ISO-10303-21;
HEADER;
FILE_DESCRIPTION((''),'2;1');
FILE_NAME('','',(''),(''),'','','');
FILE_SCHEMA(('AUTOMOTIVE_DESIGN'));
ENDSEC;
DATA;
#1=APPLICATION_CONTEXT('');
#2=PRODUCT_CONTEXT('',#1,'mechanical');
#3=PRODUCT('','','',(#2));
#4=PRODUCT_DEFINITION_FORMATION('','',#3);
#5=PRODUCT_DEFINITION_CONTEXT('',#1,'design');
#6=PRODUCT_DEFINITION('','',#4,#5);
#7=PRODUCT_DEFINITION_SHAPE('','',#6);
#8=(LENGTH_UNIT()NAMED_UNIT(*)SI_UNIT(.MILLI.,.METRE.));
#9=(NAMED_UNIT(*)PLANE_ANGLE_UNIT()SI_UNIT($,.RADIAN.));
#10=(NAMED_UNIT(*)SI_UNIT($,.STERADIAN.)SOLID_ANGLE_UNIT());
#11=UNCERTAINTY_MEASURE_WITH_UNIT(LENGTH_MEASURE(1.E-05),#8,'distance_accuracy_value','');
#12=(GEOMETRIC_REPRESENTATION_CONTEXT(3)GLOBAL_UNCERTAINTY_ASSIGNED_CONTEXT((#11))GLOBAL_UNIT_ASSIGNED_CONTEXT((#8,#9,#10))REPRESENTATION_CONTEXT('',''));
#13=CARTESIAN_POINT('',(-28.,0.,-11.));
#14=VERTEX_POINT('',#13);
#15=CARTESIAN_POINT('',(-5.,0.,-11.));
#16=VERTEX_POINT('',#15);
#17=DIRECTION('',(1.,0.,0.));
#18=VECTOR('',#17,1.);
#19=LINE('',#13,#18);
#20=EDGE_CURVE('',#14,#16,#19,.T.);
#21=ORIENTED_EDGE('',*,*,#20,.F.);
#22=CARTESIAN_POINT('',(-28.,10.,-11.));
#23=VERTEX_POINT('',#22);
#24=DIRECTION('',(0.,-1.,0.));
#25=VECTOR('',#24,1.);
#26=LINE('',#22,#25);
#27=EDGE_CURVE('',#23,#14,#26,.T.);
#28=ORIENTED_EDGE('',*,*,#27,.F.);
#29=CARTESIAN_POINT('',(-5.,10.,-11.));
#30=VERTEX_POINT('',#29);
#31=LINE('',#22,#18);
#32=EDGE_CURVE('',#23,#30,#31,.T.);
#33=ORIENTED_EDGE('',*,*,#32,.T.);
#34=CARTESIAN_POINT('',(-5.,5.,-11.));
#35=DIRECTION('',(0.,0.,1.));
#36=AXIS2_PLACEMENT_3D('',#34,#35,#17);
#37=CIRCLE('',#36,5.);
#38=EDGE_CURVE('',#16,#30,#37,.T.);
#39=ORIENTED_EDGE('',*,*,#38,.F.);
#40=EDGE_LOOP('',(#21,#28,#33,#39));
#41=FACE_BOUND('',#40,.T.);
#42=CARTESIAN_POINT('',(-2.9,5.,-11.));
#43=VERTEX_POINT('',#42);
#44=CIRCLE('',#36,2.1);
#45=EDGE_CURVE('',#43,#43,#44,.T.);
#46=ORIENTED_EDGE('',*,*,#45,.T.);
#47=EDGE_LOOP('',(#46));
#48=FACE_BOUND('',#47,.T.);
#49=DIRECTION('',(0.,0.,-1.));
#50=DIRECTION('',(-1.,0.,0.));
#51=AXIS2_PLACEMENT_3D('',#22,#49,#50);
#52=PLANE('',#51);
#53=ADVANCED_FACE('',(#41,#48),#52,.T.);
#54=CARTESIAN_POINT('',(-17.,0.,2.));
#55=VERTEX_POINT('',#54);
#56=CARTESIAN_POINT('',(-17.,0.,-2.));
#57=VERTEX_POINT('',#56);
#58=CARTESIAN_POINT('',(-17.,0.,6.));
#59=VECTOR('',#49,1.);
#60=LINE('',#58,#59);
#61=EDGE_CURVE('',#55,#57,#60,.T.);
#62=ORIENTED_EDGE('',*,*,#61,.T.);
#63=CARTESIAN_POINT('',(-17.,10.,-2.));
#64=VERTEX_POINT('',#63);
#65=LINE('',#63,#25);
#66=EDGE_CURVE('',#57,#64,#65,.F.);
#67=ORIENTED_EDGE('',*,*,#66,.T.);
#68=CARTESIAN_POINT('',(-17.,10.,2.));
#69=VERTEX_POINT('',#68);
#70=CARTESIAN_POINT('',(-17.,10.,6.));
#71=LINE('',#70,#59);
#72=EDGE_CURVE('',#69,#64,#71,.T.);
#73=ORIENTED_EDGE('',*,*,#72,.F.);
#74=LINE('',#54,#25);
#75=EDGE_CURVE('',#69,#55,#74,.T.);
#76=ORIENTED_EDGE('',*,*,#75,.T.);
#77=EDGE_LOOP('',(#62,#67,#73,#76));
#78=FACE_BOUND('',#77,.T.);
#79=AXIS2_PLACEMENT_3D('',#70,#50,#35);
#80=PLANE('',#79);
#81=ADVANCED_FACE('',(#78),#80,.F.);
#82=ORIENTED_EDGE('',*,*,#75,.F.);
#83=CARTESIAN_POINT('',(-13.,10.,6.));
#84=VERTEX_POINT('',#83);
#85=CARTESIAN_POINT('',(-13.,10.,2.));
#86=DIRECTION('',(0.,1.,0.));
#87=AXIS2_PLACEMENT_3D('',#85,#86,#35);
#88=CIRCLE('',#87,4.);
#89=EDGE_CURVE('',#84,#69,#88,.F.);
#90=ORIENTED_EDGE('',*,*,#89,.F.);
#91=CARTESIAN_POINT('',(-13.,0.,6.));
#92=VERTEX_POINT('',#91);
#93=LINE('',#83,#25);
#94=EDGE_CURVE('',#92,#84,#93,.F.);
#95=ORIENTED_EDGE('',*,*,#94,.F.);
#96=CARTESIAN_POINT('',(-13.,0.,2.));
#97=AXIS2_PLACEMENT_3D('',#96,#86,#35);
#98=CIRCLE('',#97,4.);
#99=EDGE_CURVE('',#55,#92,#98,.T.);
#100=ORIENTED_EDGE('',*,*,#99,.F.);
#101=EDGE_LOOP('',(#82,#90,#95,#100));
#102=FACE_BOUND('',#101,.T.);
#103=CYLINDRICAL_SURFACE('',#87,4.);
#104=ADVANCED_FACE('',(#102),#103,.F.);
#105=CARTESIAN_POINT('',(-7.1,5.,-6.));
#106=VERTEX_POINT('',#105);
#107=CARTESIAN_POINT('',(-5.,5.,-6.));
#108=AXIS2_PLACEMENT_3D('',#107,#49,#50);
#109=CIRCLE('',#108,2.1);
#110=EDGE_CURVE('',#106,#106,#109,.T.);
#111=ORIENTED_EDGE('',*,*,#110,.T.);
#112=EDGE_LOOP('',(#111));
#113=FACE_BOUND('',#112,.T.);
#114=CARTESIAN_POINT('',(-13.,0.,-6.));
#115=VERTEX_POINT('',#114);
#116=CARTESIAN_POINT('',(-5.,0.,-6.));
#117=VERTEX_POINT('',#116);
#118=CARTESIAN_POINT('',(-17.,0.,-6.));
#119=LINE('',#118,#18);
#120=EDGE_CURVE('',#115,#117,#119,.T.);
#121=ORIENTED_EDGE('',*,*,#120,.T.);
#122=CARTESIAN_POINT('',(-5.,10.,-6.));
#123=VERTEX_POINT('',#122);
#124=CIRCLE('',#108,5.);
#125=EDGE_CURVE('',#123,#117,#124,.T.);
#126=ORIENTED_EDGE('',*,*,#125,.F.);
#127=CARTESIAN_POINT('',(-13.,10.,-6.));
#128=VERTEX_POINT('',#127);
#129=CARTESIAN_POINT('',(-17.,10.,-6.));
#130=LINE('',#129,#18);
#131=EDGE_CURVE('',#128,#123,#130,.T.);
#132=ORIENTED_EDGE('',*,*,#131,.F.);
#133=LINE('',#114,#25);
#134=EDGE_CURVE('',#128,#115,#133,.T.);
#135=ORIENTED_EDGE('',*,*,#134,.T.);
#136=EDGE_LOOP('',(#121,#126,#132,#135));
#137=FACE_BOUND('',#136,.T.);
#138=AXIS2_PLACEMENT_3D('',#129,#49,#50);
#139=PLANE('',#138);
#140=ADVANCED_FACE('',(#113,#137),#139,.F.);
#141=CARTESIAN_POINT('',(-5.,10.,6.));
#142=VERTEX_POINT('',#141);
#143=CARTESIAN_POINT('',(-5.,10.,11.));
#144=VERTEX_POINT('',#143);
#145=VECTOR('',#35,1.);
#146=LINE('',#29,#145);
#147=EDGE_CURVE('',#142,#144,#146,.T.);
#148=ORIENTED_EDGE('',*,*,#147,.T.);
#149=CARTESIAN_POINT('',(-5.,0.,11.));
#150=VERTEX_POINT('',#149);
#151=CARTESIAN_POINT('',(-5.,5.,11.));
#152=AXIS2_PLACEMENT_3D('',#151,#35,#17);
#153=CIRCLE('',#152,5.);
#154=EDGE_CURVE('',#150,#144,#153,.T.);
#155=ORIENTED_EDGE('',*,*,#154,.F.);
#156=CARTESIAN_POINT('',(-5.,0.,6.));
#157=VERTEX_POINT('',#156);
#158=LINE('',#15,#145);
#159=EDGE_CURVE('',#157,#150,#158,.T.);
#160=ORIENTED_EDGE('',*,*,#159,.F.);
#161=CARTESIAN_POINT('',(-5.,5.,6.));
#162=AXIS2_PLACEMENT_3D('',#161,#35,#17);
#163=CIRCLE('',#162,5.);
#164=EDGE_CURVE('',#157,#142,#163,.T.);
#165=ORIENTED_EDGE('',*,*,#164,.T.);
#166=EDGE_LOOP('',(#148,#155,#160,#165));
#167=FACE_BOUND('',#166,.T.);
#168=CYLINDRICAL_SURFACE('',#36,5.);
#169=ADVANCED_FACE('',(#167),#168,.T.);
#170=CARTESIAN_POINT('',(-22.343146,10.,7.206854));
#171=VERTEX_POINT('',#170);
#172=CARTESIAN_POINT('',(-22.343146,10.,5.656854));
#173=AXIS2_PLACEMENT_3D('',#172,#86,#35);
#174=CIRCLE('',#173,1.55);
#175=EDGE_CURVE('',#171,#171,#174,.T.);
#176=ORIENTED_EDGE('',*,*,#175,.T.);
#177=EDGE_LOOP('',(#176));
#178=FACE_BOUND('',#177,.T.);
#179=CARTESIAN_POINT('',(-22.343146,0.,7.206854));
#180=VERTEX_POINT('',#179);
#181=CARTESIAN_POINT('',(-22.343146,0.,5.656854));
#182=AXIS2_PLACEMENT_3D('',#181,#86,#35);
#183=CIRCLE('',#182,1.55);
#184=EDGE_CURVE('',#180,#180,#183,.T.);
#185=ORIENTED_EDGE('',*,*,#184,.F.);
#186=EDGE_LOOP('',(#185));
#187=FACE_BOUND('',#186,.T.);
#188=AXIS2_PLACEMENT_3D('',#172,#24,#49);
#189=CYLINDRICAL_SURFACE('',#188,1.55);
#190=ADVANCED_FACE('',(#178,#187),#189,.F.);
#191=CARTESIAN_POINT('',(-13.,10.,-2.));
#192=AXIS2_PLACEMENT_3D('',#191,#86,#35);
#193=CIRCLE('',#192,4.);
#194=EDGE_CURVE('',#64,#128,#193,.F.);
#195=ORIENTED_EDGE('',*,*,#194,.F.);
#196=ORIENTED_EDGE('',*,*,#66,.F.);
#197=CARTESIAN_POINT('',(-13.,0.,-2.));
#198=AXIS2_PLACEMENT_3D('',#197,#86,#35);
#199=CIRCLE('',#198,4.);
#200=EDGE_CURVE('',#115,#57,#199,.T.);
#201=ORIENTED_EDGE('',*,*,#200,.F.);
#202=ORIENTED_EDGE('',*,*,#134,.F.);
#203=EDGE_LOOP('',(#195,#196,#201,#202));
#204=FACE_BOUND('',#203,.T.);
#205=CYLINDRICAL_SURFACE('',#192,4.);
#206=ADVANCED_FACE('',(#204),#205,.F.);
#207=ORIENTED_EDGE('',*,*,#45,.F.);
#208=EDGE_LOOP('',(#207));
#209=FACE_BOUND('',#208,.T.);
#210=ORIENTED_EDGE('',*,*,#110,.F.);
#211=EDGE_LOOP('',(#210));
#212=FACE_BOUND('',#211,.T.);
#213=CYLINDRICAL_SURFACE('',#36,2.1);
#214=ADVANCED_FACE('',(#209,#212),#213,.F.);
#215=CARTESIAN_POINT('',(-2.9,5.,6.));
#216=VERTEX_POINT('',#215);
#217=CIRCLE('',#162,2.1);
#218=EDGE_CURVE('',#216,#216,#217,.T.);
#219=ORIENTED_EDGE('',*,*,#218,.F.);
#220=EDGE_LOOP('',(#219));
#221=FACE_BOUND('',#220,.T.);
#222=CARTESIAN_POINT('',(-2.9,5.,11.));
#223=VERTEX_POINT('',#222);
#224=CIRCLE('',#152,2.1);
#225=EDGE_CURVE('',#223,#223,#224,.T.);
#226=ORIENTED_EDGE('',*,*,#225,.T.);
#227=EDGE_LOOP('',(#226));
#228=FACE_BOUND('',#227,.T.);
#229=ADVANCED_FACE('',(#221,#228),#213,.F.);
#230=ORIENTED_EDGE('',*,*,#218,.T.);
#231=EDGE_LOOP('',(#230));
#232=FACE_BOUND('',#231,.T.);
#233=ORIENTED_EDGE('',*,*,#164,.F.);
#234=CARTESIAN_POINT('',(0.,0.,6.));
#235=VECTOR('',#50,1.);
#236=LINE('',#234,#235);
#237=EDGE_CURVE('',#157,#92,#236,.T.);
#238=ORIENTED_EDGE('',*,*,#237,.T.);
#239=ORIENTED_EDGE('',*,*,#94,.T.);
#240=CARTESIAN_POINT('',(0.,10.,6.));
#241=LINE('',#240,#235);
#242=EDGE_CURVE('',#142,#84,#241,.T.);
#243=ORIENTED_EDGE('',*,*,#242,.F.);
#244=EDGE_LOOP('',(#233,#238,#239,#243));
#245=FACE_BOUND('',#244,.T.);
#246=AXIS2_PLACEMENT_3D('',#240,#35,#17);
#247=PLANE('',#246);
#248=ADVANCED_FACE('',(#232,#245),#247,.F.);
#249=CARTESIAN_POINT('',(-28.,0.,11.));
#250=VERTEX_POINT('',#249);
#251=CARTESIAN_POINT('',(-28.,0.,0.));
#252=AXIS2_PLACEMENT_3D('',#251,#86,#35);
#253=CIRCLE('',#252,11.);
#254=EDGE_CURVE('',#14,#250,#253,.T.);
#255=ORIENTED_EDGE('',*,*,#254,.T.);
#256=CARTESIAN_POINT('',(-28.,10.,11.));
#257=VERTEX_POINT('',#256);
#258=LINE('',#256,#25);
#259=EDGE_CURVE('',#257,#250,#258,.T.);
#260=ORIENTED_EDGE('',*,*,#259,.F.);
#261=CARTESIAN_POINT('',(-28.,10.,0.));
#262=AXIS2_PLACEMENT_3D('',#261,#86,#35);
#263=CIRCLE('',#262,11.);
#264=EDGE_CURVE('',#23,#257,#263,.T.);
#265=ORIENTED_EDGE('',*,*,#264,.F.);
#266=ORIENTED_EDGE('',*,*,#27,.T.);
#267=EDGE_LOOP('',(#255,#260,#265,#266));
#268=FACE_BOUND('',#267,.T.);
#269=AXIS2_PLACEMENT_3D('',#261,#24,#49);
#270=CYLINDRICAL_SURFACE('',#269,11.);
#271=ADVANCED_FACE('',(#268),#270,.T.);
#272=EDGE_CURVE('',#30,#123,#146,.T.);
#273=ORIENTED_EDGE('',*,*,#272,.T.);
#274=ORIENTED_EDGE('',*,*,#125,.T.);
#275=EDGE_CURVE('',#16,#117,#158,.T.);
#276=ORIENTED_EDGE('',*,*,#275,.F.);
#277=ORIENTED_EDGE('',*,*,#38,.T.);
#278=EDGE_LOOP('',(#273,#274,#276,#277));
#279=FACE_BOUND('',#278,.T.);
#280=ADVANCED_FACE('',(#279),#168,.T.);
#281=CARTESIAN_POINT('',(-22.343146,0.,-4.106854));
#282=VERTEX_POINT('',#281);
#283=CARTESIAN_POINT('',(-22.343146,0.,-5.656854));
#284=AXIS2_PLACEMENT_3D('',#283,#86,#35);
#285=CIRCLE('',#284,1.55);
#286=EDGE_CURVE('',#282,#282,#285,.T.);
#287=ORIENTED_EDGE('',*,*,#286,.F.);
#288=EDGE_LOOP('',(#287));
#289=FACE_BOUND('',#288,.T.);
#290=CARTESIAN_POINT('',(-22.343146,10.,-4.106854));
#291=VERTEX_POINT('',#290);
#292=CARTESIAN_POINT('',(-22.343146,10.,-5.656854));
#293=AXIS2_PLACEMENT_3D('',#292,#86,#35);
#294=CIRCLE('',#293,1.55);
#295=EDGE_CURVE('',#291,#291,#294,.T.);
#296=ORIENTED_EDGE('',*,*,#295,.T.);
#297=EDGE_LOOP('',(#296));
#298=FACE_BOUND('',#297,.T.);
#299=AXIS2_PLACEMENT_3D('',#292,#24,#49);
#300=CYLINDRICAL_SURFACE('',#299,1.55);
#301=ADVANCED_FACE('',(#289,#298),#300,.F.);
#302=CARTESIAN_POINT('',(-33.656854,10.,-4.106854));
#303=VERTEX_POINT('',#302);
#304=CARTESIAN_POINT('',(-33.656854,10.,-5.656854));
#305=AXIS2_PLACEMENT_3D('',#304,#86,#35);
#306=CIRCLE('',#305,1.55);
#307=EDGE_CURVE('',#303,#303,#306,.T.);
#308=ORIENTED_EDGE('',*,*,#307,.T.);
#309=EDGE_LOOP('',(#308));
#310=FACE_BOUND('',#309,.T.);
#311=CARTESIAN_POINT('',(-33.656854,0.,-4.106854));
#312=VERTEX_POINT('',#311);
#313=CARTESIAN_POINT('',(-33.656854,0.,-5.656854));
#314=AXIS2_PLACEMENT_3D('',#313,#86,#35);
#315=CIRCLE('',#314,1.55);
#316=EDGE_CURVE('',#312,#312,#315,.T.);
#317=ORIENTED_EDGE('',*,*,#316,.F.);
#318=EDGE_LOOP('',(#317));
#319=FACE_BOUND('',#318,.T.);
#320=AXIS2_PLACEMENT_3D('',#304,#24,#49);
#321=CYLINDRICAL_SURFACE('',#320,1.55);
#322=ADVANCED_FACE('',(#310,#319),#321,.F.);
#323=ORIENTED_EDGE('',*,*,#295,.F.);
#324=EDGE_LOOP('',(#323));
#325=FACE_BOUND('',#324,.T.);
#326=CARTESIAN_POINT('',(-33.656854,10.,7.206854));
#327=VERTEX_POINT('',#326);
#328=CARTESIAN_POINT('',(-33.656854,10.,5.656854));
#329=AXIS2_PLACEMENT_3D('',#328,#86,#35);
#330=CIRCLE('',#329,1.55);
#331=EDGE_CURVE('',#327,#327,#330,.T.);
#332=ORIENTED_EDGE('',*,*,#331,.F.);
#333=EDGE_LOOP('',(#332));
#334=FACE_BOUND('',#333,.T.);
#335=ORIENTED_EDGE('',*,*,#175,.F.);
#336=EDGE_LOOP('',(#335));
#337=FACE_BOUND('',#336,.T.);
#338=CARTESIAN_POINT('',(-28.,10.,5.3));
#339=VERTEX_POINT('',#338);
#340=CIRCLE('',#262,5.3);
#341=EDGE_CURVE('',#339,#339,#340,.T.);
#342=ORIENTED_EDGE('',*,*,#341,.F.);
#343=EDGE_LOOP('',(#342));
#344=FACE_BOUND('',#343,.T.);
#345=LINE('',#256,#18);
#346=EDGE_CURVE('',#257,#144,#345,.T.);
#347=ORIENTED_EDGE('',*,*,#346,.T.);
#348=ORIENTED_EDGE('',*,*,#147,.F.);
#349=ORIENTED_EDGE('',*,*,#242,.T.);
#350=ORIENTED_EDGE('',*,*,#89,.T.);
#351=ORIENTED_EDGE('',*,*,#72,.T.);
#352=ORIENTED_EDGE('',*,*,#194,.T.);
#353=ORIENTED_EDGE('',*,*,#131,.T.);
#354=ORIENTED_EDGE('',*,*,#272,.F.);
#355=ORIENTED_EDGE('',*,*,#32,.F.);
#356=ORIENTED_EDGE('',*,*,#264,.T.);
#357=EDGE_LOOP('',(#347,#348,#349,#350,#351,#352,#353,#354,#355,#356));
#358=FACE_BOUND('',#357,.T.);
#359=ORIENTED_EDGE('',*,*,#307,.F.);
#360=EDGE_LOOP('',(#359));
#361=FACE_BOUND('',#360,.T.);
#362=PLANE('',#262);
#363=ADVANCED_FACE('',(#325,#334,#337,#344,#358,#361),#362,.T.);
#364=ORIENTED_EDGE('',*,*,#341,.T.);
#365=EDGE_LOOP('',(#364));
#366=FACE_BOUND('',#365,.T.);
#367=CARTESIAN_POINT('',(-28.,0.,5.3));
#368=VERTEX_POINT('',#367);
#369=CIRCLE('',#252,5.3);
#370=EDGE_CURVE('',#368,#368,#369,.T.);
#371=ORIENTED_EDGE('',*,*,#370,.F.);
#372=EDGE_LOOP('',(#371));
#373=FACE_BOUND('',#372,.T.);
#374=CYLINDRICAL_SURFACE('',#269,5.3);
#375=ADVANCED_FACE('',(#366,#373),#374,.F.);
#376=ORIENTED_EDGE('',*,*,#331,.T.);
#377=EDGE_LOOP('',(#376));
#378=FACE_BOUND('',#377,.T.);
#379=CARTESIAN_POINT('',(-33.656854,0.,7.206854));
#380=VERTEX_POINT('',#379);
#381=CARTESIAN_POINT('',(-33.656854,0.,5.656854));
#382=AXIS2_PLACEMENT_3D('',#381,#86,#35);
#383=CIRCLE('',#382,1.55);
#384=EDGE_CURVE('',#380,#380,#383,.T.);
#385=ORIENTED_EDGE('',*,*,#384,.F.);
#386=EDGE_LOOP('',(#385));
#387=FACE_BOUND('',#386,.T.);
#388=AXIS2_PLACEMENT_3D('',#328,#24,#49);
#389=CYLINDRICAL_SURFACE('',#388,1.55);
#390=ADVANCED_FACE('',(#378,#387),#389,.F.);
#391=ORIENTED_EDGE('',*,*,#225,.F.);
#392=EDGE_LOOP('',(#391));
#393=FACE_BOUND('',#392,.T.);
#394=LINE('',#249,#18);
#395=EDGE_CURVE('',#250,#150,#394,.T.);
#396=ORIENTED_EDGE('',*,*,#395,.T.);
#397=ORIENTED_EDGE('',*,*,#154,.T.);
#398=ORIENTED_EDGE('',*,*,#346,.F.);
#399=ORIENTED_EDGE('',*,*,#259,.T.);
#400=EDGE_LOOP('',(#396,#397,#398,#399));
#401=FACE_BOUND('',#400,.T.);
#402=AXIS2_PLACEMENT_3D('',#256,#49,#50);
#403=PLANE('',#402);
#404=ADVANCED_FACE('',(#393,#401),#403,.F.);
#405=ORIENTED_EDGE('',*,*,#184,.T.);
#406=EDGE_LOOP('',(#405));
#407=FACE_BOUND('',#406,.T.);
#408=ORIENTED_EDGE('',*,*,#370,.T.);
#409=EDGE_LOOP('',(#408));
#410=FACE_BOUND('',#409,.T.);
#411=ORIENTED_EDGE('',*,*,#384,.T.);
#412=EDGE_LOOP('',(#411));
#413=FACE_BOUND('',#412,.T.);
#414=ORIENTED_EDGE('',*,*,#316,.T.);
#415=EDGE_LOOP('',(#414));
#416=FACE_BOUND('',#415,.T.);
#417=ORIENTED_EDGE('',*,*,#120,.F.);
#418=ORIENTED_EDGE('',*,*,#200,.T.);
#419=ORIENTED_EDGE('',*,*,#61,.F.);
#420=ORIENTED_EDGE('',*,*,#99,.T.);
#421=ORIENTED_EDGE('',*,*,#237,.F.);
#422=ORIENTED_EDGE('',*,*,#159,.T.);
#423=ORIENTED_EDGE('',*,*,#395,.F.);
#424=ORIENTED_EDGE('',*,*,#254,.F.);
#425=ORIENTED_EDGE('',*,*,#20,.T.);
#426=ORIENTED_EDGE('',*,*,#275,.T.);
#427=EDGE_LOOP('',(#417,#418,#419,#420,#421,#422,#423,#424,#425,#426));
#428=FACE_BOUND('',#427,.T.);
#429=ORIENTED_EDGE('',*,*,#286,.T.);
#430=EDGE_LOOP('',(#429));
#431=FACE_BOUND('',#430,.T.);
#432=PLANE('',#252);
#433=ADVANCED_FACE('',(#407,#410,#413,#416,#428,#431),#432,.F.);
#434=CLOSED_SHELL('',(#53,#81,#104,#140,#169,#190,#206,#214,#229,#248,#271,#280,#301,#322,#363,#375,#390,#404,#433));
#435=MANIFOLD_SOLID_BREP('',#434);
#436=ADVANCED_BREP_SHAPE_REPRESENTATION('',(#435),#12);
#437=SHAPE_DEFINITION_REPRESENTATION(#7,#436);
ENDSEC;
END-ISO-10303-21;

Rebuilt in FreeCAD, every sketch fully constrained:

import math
import FreeCAD as App
import Part
import Sketcher
Q = App.Units.Quantity


def edges_at(feature, points):
    """Names of the edges that pass closest to the given points."""
    edges = feature.Shape.Edges
    near = lambda p: min(range(len(edges)), key=lambda i: edges[i].distToShape(Part.Vertex(*p))[0])
    return sorted({f"Edge{near(p) + 1}" for p in points})

doc = App.newDocument("Part")
body = doc.addObject("PartDesign::Body", "Body")

# Sketch on XZ plane
sketch1 = doc.addObject("Sketcher::SketchObject", "Sketch")
body.addObject(sketch1)
sketch1.AttachmentSupport = (doc.XZ_Plane, [""])
sketch1.MapMode = "FlatFace"
sketch1.addGeometry([
    Part.LineSegment(App.Vector(-28, 11, 0), App.Vector(0, 11, 0)),  # 0
    Part.LineSegment(App.Vector(0, 11, 0), App.Vector(0, 6, 0)),  # 1
    Part.LineSegment(App.Vector(0, 6, 0), App.Vector(-17, 6, 0)),  # 2
    Part.LineSegment(App.Vector(-17, 6, 0), App.Vector(-17, -6, 0)),  # 3
    Part.LineSegment(App.Vector(-17, -6, 0), App.Vector(0, -6, 0)),  # 4
    Part.LineSegment(App.Vector(0, -6, 0), App.Vector(0, -11, 0)),  # 5
    Part.LineSegment(App.Vector(0, -11, 0), App.Vector(-28, -11, 0)),  # 6
    Part.ArcOfCircle(Part.Circle(App.Vector(-28, 0, 0), App.Vector(0, 0, 1), 11), math.radians(90), math.radians(270)),  # 7
    Part.Circle(App.Vector(-33.656854, 5.656854, 0), App.Vector(0, 0, 1), 1.55),  # 8
    Part.Circle(App.Vector(-22.343146, 5.656854, 0), App.Vector(0, 0, 1), 1.55),  # 9
    Part.Circle(App.Vector(-28, 0, 0), App.Vector(0, 0, 1), 5.3),  # 10
    Part.Circle(App.Vector(-33.656854, -5.656854, 0), App.Vector(0, 0, 1), 1.55),  # 11
    Part.Circle(App.Vector(-22.343146, -5.656854, 0), App.Vector(0, 0, 1), 1.55),  # 12
], False)
sketch1.addConstraint([
    Sketcher.Constraint("Coincident", 0, 2, 1, 1),
    Sketcher.Constraint("Coincident", 1, 2, 2, 1),
    Sketcher.Constraint("Coincident", 2, 2, 3, 1),
    Sketcher.Constraint("Coincident", 3, 2, 4, 1),
    Sketcher.Constraint("Coincident", 4, 2, 5, 1),
    Sketcher.Constraint("Coincident", 5, 2, 6, 1),
    Sketcher.Constraint("Tangent", 6, 2, 7, 2),
    Sketcher.Constraint("Tangent", 7, 1, 0, 1),
    Sketcher.Constraint("Horizontal", 0),
    Sketcher.Constraint("Vertical", 1),
    Sketcher.Constraint("Horizontal", 2),
    Sketcher.Constraint("Vertical", 3),
    Sketcher.Constraint("Horizontal", 4),
    Sketcher.Constraint("Vertical", 5),
    Sketcher.Constraint("Horizontal", 6),
    Sketcher.Constraint("Coincident", 10, 3, 7, 3),
    Sketcher.Constraint("Equal", 8, 9),
    Sketcher.Constraint("Equal", 9, 11),
    Sketcher.Constraint("Equal", 11, 12),
    Sketcher.Constraint("Symmetric", 1, 2, 4, 2, -1, 1),
    Sketcher.Constraint("Symmetric", 8, 3, 11, 3, -1),
    Sketcher.Constraint("Symmetric", 9, 3, 12, 3, -1),
    Sketcher.Constraint("Symmetric", 0, 2, 5, 2, -1),
    Sketcher.Constraint("Horizontal", 8, 3, 9, 3),
    Sketcher.Constraint("Radius", 7, Q("11 mm")),
    Sketcher.Constraint("Diameter", 8, Q("3.1 mm")),
    Sketcher.Constraint("Diameter", 10, Q("10.6 mm")),
    Sketcher.Constraint("DistanceX", 0, 1, 0, 2, Q("28 mm")),
    Sketcher.Constraint("DistanceX", 2, 2, 2, 1, Q("17 mm")),
    Sketcher.Constraint("DistanceY", 1, 2, 1, 1, Q("5 mm")),
    Sketcher.Constraint("DistanceX", 8, 3, 9, 3, Q("11.313708 mm")),
    Sketcher.Constraint("DistanceY", 11, 3, 8, 3, Q("11.313708 mm")),
    Sketcher.Constraint("DistanceX", 8, 3, -1, 1, Q("33.656854 mm")),
])
pad1 = doc.addObject("PartDesign::Pad", "Pad")
body.addObject(pad1)
pad1.Profile = sketch1
pad1.Length = 10
pad1.Reversed = True

# Sketch on XY plane
sketch2 = doc.addObject("Sketcher::SketchObject", "Sketch001")
body.addObject(sketch2)
sketch2.AttachmentSupport = (doc.XY_Plane, [""])
sketch2.MapMode = "FlatFace"
sketch2.AttachmentOffset = App.Placement(App.Vector(0, 0, 11), App.Rotation())
sketch2.addGeometry([
    Part.LineSegment(App.Vector(0, 10, 0), App.Vector(-5, 10, 0)),  # 0
    Part.ArcOfCircle(Part.Circle(App.Vector(-5, 5, 0), App.Vector(0, 0, 1), 5), math.radians(0), math.radians(90)),  # 1
    Part.LineSegment(App.Vector(0, 5, 0), App.Vector(0, 10, 0)),  # 2
    Part.LineSegment(App.Vector(0, 0, 0), App.Vector(0, 5, 0)),  # 3
    Part.ArcOfCircle(Part.Circle(App.Vector(-5, 5, 0), App.Vector(0, 0, 1), 5), math.radians(-90), math.radians(0)),  # 4
    Part.LineSegment(App.Vector(-5, 0, 0), App.Vector(0, 0, 0)),  # 5
    Part.Circle(App.Vector(-5, 5, 0), App.Vector(0, 0, 1), 2.1),  # 6
], False)
sketch2.addConstraint([
    Sketcher.Constraint("Tangent", 0, 2, 1, 2),
    Sketcher.Constraint("Tangent", 1, 1, 2, 1),
    Sketcher.Constraint("Coincident", 2, 2, 0, 1),
    Sketcher.Constraint("Tangent", 3, 2, 4, 2),
    Sketcher.Constraint("Tangent", 4, 1, 5, 1),
    Sketcher.Constraint("Coincident", 5, 2, 3, 1),
    Sketcher.Constraint("Horizontal", 0),
    Sketcher.Constraint("Vertical", 2),
    Sketcher.Constraint("Vertical", 3),
    Sketcher.Constraint("Horizontal", 5),
    Sketcher.Constraint("Coincident", 5, 2, -1, 1),
    Sketcher.Constraint("Coincident", 4, 3, 1, 3),
    Sketcher.Constraint("Coincident", 6, 3, 1, 3),
    Sketcher.Constraint("Equal", 1, 4),
    Sketcher.Constraint("Radius", 1, Q("5 mm")),
    Sketcher.Constraint("Diameter", 6, Q("4.2 mm")),
])
pocket1 = doc.addObject("PartDesign::Pocket", "Pocket")
body.addObject(pocket1)
pocket1.Profile = sketch2
pocket1.Type = "ThroughAll"
doc.recompute()

fillet = doc.addObject("PartDesign::Fillet", "Fillet")
body.addObject(fillet)
fillet.Base = (pocket1, edges_at(pocket1, [(-17, 5, 6), (-17, 5, -6)]))
fillet.Radius = 4

doc.recompute()
